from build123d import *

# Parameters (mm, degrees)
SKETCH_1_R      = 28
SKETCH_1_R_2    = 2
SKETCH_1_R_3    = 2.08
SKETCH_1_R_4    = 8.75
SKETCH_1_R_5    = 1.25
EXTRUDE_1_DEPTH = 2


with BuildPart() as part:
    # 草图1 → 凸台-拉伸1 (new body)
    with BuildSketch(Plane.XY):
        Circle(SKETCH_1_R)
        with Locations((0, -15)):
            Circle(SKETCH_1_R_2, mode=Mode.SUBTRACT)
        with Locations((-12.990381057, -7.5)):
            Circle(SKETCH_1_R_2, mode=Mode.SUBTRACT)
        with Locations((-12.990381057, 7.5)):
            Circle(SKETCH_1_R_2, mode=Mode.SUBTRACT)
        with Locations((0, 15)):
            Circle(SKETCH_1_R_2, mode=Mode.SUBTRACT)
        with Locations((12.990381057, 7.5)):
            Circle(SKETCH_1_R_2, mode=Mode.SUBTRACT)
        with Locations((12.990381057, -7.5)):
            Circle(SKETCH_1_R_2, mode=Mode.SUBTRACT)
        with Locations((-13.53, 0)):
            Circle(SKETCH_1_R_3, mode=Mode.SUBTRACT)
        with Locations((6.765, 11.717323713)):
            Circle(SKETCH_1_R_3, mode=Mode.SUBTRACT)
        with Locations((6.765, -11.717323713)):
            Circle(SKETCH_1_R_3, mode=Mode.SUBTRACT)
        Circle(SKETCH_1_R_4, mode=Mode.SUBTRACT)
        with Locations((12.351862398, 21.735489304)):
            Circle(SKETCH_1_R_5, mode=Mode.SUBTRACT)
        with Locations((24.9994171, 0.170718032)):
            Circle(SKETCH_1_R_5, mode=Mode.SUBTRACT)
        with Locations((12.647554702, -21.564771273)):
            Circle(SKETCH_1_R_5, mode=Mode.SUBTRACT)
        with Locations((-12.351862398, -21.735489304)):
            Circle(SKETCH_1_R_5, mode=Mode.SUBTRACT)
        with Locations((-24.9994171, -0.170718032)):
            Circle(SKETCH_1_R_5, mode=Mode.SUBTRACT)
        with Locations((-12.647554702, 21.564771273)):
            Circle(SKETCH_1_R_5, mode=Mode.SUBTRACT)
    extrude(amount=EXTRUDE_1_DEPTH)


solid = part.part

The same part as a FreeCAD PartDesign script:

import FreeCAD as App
import Part
import Sketcher

doc = App.newDocument("Part")
body = doc.addObject("PartDesign::Body", "Body")

# Sketch on XY plane
sketch1 = body.newObject("Sketcher::SketchObject", "Sketch")
sketch1.AttachmentSupport = (doc.getObject("XY_Plane"), [""])
sketch1.MapMode = "FlatFace"
sketch1.addGeometry([
    Part.Circle(App.Vector(0, 0, 0), App.Vector(0, 0, 1), 28),  # 0
    Part.Circle(App.Vector(-12.4, -21.7, 0), App.Vector(0, 0, 1), 1.2),  # 1
    Part.Circle(App.Vector(-25, -0.2, 0), App.Vector(0, 0, 1), 1.2),  # 2
    Part.Circle(App.Vector(-13, -7.5, 0), App.Vector(0, 0, 1), 2),  # 3
    Part.Circle(App.Vector(12.6, -21.6, 0), App.Vector(0, 0, 1), 1.2),  # 4
    Part.Circle(App.Vector(0, -15, 0), App.Vector(0, 0, 1), 2),  # 5
    Part.Circle(App.Vector(6.8, -11.7, 0), App.Vector(0, 0, 1), 2.1),  # 6
    Part.Circle(App.Vector(13, -7.5, 0), App.Vector(0, 0, 1), 2),  # 7
    Part.Circle(App.Vector(-13.5, 0, 0), App.Vector(0, 0, 1), 2.1),  # 8
    Part.Circle(App.Vector(-13, 7.5, 0), App.Vector(0, 0, 1), 2),  # 9
    Part.Circle(App.Vector(-12.6, 21.6, 0), App.Vector(0, 0, 1), 1.2),  # 10
    Part.Circle(App.Vector(0, 0, 0), App.Vector(0, 0, 1), 8.8),  # 11
    Part.Circle(App.Vector(13, 7.5, 0), App.Vector(0, 0, 1), 2),  # 12
    Part.Circle(App.Vector(25, 0.2, 0), App.Vector(0, 0, 1), 1.2),  # 13
    Part.Circle(App.Vector(0, 15, 0), App.Vector(0, 0, 1), 2),  # 14
    Part.Circle(App.Vector(6.8, 11.7, 0), App.Vector(0, 0, 1), 2.1),  # 15
    Part.Circle(App.Vector(12.4, 21.7, 0), App.Vector(0, 0, 1), 1.2),  # 16
], False)
sketch1.addConstraint([
    Sketcher.Constraint("Coincident", 0, 3, -1, 1),
    Sketcher.Constraint("Coincident", 11, 3, -1, 1),
    Sketcher.Constraint("Equal", 1, 2),
    Sketcher.Constraint("Equal", 2, 4),
    Sketcher.Constraint("Equal", 3, 5),
    Sketcher.Constraint("Equal", 5, 7),
    Sketcher.Constraint("Equal", 6, 8),
    Sketcher.Constraint("Equal", 7, 9),
    Sketcher.Constraint("Equal", 4, 10),
    Sketcher.Constraint("Equal", 9, 12),
    Sketcher.Constraint("Equal", 10, 13),
    Sketcher.Constraint("Equal", 12, 14),
    Sketcher.Constraint("Equal", 8, 15),
    Sketcher.Constraint("Equal", 13, 16),
    Sketcher.Constraint("Symmetric", 7, 3, 9, 3, -1, 1),
    Sketcher.Constraint("Symmetric", 4, 3, 10, 3, -1, 1),
    Sketcher.Constraint("Symmetric", 3, 3, 12, 3, -1, 1),
    Sketcher.Constraint("Symmetric", 2, 3, 13, 3, -1, 1),
    Sketcher.Constraint("Symmetric", 5, 3, 14, 3, -1, 1),
    Sketcher.Constraint("Symmetric", 1, 3, 16, 3, -1, 1),
    Sketcher.Constraint("Symmetric", 3, 3, 7, 3, -2),
    Sketcher.Constraint("Symmetric", 6, 3, 15, 3, -1),
    Sketcher.Constraint("PointOnObject", 5, 3, -2),
    Sketcher.Constraint("PointOnObject", 8, 3, -1),
    Sketcher.Constraint("Diameter", 0, 56.0),
    Sketcher.Constraint("Diameter", 3, 4.0),
    Sketcher.Constraint("Diameter", 1, 2.5),
    Sketcher.Constraint("Diameter", 11, 17.5),
    Sketcher.Constraint("Diameter", 6, 4.16),
    Sketcher.Constraint("DistanceY", 5, 3, -1, 1, 15.0),
    Sketcher.Constraint("DistanceY", 3, 3, 9, 3, 15.0),
    Sketcher.Constraint("DistanceX", 8, 3, -1, 1, 13.53),
    Sketcher.Constraint("DistanceX", -1, 1, 6, 3, 6.765),
    Sketcher.Constraint("DistanceY", 1, 3, -1, 1, 21.735489),
    Sketcher.Constraint("DistanceY", 2, 3, -1, 1, 0.170718),
    Sketcher.Constraint("DistanceX", 3, 3, -1, 1, 12.990381),
    Sketcher.Constraint("DistanceY", 4, 3, -1, 1, 21.564771),
    Sketcher.Constraint("DistanceX", 3, 3, 1, 3, 0.638519),
    Sketcher.Constraint("DistanceX", 2, 3, 4, 3, 37.646972),
    Sketcher.Constraint("DistanceY", 6, 3, 13, 3, 11.888042),
    Sketcher.Constraint("DistanceX", 2, 3, -1, 1, 24.999417),
])
pad1 = body.newObject("PartDesign::Pad", "Pad")
pad1.Profile = sketch1
pad1.Length = 2

doc.recompute()
